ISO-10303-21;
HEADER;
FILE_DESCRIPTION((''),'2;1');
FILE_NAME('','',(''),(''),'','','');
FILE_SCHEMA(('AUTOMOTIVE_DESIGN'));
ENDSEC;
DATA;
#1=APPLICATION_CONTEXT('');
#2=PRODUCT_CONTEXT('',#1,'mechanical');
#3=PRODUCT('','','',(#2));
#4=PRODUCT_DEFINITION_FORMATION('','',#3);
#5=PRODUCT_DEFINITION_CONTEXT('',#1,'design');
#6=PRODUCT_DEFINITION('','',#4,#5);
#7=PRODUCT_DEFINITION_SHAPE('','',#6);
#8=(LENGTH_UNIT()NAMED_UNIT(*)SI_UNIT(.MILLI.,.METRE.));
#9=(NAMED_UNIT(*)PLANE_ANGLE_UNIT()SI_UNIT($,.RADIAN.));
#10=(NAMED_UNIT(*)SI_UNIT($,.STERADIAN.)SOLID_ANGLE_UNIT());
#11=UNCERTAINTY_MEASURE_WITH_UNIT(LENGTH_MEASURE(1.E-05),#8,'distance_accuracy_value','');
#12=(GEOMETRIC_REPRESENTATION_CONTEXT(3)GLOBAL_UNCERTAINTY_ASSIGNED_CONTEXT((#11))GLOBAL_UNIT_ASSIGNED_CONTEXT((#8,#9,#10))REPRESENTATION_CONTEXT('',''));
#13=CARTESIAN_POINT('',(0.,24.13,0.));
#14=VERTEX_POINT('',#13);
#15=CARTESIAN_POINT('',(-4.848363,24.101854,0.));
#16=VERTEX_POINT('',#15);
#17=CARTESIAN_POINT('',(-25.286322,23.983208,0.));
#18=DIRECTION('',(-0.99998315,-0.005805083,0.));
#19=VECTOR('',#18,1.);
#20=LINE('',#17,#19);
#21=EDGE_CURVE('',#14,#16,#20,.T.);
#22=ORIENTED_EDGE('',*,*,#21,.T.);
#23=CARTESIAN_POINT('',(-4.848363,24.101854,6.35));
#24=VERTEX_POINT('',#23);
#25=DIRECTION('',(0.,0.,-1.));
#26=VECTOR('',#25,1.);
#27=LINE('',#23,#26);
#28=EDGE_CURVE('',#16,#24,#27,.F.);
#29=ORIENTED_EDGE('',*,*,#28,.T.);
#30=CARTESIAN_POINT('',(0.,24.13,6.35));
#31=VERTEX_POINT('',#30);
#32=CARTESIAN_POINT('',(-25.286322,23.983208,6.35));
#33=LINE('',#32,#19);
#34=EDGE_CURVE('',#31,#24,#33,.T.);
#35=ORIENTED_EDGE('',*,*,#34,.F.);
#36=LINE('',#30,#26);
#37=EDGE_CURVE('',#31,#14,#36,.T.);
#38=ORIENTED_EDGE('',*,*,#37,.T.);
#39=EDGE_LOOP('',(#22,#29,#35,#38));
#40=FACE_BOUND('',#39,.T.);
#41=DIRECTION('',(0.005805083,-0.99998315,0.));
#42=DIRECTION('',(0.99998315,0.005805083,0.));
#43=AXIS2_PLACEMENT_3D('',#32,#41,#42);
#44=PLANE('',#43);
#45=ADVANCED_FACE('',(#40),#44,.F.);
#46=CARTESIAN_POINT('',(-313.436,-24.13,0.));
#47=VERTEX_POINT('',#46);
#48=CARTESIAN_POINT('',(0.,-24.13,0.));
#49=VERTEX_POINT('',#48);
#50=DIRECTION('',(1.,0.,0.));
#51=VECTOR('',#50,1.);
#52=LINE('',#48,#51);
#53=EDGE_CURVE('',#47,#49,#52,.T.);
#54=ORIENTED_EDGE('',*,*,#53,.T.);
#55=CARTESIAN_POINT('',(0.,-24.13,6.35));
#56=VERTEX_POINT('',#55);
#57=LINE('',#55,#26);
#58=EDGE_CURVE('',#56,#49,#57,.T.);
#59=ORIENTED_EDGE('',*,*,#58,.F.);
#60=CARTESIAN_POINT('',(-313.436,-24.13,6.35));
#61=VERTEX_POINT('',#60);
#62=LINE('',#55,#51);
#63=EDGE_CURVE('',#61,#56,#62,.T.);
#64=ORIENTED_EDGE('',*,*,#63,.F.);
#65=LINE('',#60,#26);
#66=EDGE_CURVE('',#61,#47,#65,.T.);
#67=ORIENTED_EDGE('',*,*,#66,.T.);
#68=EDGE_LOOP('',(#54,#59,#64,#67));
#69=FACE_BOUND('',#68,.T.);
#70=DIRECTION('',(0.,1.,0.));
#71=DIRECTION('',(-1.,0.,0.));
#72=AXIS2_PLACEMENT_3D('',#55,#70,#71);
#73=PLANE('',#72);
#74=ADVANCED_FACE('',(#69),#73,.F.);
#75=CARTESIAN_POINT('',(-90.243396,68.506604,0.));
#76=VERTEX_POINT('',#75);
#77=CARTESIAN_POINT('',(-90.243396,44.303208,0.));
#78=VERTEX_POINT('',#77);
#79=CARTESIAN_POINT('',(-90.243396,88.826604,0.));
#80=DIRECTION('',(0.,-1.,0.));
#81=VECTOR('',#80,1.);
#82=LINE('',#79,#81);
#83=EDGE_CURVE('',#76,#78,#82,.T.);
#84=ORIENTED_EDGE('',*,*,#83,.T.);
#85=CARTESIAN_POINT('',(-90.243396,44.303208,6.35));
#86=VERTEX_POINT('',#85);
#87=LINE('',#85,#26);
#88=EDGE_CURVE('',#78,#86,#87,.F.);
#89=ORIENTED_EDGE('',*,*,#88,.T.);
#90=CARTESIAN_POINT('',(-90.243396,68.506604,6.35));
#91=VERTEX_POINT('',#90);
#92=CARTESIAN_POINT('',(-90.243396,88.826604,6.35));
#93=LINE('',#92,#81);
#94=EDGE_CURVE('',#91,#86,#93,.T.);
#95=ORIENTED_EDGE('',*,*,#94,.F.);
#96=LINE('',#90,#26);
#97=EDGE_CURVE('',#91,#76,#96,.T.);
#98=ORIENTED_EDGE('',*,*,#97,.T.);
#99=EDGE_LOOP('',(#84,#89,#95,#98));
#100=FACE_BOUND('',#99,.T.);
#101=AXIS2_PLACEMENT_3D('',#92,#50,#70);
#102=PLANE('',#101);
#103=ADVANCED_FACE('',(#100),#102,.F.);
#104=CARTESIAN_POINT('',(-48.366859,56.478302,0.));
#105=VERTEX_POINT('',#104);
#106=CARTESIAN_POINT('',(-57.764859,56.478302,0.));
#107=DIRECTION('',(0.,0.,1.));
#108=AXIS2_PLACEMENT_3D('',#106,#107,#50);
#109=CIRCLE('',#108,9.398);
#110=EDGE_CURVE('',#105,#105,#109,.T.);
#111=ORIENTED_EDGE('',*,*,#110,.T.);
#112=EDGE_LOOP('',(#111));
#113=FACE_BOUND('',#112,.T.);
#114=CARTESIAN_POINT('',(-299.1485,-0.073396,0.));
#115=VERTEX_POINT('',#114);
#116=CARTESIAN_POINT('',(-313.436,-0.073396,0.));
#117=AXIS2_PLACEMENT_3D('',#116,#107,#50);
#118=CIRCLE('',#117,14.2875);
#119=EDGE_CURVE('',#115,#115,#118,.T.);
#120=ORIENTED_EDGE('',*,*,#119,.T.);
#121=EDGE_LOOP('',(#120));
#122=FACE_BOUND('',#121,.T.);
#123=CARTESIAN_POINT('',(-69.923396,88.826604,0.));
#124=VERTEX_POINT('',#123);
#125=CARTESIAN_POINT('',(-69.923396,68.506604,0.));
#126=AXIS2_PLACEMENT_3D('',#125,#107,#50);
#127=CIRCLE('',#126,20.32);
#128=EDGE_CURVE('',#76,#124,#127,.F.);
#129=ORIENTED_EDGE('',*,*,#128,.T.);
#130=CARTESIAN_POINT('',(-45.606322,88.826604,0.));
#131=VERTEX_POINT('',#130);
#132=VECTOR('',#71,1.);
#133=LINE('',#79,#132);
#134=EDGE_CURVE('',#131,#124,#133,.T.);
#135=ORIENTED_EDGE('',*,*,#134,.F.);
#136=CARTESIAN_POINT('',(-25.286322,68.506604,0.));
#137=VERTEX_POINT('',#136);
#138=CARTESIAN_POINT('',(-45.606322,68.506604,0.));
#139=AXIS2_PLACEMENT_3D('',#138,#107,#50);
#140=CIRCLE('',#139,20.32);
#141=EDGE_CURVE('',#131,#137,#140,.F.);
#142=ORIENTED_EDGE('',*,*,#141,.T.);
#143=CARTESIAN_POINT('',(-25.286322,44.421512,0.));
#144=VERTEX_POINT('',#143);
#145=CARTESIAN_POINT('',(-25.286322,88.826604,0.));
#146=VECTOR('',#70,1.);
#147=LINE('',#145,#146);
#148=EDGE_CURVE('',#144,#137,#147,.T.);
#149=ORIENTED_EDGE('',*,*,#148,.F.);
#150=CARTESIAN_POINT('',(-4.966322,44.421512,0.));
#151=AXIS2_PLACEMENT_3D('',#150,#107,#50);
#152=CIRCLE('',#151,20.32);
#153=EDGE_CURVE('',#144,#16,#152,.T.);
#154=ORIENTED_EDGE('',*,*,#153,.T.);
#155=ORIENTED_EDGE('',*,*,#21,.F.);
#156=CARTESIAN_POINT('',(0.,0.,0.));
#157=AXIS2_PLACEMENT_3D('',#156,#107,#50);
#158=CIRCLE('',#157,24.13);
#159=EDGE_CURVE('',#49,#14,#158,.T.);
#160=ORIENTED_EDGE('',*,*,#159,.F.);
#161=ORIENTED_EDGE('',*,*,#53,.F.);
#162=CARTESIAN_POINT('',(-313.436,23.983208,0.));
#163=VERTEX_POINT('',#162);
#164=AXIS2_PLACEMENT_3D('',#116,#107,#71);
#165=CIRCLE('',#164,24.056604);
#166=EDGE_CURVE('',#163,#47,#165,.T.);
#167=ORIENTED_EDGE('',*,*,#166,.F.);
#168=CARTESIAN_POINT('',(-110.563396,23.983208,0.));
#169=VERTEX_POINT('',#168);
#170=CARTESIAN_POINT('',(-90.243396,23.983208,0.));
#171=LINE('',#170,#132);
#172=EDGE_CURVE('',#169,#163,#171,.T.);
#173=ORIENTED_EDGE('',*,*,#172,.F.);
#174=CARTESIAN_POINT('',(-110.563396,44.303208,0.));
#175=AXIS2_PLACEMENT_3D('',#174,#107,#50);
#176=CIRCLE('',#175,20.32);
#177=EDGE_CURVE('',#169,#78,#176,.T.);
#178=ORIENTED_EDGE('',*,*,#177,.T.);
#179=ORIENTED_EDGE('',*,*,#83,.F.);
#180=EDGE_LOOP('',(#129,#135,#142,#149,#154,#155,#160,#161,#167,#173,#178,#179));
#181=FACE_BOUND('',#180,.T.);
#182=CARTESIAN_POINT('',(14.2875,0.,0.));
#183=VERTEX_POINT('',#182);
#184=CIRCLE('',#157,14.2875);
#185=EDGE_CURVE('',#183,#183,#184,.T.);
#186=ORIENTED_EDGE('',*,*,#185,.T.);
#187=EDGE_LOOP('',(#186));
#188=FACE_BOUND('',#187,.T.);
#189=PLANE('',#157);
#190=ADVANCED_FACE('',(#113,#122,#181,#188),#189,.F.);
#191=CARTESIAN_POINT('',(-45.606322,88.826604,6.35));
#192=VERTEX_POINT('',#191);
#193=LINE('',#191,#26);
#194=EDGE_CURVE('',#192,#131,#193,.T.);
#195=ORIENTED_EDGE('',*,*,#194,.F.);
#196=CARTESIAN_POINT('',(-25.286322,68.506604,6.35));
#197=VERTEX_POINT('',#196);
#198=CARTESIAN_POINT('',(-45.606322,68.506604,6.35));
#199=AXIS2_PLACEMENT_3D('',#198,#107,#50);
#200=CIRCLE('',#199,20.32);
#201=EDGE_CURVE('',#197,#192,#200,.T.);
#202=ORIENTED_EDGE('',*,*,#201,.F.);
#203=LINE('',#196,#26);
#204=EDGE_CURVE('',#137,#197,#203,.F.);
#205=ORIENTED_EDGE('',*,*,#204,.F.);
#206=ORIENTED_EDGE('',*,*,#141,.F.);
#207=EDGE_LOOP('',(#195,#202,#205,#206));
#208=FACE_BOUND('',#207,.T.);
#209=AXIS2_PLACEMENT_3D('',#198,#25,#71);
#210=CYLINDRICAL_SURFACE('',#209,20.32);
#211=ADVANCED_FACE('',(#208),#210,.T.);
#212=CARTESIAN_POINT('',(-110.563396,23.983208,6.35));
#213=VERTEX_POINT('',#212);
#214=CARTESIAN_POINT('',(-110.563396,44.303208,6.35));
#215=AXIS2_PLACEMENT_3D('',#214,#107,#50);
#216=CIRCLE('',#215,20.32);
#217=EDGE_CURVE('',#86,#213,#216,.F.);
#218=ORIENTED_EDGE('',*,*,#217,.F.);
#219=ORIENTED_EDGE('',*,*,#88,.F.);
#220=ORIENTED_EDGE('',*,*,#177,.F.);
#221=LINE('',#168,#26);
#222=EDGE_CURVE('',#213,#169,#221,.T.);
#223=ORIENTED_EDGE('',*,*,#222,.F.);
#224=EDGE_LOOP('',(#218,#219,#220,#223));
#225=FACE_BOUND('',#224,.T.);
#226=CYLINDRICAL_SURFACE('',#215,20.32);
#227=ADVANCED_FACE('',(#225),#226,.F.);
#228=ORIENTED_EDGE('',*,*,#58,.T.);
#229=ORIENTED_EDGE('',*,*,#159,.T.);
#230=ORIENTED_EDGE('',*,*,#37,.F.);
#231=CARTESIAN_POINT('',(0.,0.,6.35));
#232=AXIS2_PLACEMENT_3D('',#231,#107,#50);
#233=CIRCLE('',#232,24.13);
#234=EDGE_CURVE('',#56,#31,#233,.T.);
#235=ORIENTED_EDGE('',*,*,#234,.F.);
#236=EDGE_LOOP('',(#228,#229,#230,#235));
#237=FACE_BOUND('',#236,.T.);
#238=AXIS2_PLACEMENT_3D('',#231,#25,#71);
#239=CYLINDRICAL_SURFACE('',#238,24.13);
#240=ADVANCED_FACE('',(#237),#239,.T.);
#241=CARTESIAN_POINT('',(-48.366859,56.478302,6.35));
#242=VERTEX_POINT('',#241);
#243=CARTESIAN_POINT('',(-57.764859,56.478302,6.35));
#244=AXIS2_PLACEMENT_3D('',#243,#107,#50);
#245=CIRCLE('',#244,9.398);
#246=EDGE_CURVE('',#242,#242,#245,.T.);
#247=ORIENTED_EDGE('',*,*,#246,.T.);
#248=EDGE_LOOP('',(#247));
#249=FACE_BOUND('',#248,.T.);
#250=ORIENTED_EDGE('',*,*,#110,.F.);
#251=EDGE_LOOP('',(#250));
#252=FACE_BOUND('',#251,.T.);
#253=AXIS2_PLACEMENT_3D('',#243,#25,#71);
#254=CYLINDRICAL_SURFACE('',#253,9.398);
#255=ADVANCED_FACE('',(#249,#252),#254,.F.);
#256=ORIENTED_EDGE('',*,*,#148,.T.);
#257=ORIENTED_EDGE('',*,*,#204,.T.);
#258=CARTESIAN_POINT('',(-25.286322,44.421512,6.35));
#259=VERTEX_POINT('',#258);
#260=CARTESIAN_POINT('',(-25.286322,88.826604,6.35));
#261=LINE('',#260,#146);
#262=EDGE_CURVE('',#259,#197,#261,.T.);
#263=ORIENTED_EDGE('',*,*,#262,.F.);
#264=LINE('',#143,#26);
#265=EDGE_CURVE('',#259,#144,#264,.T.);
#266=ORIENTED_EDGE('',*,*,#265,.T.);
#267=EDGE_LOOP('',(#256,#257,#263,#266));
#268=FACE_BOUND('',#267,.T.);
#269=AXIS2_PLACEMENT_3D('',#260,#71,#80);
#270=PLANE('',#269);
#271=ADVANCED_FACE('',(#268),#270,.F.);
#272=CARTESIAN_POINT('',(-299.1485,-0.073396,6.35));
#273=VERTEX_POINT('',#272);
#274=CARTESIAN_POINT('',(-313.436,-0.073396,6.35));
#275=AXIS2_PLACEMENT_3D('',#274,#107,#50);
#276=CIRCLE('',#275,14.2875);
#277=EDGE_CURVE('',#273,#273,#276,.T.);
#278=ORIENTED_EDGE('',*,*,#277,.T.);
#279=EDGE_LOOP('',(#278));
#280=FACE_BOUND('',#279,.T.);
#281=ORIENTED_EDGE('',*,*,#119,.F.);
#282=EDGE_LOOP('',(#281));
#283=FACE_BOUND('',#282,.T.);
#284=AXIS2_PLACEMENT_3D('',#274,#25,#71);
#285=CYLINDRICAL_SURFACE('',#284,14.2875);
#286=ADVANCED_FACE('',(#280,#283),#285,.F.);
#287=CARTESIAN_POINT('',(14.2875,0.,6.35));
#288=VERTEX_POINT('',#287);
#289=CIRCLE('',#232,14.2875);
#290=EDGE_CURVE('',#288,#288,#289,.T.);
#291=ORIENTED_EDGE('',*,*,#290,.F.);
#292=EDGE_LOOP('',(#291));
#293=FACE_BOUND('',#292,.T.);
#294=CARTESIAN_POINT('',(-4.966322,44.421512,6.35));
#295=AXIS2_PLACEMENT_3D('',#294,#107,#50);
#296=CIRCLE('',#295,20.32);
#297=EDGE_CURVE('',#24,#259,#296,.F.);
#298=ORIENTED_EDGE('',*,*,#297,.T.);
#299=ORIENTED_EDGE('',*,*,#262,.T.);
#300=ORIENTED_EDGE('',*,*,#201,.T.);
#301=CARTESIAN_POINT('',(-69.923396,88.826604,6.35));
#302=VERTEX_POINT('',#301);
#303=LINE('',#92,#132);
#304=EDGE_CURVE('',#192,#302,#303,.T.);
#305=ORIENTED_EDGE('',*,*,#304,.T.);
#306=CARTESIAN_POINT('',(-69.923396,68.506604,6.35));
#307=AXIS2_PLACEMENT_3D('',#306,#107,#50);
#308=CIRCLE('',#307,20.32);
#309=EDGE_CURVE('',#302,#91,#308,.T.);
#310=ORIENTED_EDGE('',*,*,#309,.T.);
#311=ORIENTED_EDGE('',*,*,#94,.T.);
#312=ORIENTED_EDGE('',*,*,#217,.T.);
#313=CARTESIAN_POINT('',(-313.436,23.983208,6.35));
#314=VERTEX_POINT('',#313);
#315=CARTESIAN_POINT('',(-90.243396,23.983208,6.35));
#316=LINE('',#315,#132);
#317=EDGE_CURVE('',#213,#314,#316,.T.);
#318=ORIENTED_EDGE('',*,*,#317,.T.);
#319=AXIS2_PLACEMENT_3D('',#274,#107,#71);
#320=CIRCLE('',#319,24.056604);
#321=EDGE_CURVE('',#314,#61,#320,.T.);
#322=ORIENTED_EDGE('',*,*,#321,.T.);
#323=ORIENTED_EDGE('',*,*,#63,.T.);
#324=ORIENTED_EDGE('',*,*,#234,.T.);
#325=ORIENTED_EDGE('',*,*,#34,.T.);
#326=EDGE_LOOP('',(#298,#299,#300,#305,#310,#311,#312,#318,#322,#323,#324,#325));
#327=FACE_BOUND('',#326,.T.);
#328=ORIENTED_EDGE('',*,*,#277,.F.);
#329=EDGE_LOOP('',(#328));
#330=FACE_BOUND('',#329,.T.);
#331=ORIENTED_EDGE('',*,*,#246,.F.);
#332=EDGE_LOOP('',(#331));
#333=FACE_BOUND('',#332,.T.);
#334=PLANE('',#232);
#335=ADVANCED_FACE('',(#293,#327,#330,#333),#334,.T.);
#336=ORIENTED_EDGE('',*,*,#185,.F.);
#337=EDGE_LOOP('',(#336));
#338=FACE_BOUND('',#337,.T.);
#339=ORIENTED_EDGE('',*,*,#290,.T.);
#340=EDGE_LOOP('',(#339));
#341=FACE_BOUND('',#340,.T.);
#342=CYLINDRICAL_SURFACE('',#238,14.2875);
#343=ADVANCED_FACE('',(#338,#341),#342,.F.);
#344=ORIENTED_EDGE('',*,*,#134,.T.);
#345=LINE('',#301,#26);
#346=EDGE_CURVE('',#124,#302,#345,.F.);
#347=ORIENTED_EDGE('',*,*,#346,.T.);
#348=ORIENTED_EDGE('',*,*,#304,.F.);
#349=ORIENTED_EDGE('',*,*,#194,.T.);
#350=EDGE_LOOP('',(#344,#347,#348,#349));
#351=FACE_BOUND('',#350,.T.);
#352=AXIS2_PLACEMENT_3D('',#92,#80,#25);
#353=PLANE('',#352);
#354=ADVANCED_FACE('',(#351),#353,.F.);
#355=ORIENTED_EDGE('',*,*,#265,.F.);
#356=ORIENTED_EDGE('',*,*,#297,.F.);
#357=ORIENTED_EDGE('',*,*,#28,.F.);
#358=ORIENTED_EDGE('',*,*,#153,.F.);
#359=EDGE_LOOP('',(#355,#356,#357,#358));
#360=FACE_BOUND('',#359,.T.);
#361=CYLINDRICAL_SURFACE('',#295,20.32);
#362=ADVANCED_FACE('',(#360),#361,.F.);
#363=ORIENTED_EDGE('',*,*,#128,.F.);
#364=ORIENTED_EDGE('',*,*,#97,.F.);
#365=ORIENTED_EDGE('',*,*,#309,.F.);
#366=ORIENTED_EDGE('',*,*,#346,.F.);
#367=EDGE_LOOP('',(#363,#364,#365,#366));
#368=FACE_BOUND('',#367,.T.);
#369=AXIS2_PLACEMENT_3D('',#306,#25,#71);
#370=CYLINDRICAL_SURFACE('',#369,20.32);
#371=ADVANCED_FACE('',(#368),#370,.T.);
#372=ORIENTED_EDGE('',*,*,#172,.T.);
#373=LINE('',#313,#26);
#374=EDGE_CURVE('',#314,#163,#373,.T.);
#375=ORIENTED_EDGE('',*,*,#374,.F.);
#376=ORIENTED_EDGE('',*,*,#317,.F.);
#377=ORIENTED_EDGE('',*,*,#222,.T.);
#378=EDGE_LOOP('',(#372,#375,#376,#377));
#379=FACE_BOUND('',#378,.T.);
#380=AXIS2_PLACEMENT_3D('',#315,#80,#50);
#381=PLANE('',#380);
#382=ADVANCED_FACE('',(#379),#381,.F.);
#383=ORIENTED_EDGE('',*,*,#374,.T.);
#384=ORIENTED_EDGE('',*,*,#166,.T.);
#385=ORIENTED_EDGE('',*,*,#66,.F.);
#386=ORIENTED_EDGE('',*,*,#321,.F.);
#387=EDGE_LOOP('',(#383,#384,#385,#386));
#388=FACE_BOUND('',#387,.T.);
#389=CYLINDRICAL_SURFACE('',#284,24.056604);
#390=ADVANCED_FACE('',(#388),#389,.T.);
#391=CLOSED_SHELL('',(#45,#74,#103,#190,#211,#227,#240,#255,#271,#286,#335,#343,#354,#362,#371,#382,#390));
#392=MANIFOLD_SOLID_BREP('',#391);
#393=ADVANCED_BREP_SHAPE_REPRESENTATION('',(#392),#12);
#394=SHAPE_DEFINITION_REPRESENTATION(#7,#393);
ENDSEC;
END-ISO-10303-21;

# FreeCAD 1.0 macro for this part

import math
import FreeCAD as App
import Part
import Sketcher
from FreeCAD import Vector
Q = App.Units.Quantity


def edges_at(feature, points):
    """Names of the edges that pass closest to the given points."""
    edges = feature.Shape.Edges
    near = lambda p: min(range(len(edges)), key=lambda i: edges[i].distToShape(Part.Vertex(*p))[0])
    return sorted({f"Edge{near(p) + 1}" for p in points})

doc = App.newDocument("Part")
body = doc.addObject("PartDesign::Body", "Body")

# Sketch on XY plane
sketch1 = body.newObject("Sketcher::SketchObject", "Sketch")
sketch1.AttachmentSupport = (doc.getObject("XY_Plane"), [""])
sketch1.MapMode = "FlatFace"
sketch1.addGeometry(Part.LineSegment(Vector(-313, -24, 0), Vector(0, -24, 0)), False)
sketch1.addGeometry(Part.ArcOfCircle(Part.Circle(Vector(0, 0, 0), Vector(0, 0, 1), 24), math.radians(-90), math.radians(90)), False)
sketch1.addGeometry(Part.LineSegment(Vector(0, 24, 0), Vector(-25, 24, 0)), False)
sketch1.addGeometry(Part.LineSegment(Vector(-25, 24, 0), Vector(-25, 89, 0)), False)
sketch1.addGeometry(Part.LineSegment(Vector(-25, 89, 0), Vector(-90, 89, 0)), False)
sketch1.addGeometry(Part.LineSegment(Vector(-90, 89, 0), Vector(-90, 24, 0)), False)
sketch1.addGeometry(Part.LineSegment(Vector(-90, 24, 0), Vector(-313, 24, 0)), False)
sketch1.addGeometry(Part.ArcOfCircle(Part.Circle(Vector(-313, 0, 0), Vector(0, 0, 1), 24), math.radians(90), math.radians(270)), False)
sketch1.addGeometry(Part.Circle(Vector(0, 0, 0), Vector(0, 0, 1), 14), False)
sketch1.addGeometry(Part.Circle(Vector(-313, 0, 0), Vector(0, 0, 1), 14), False)
sketch1.addGeometry(Part.Circle(Vector(-58, 56, 0), Vector(0, 0, 1), 9), False)
sketch1.addConstraint(Sketcher.Constraint("Tangent", 0, 2, 1, 1))
sketch1.addConstraint(Sketcher.Constraint("Coincident", 1, 2, 2, 1))
sketch1.addConstraint(Sketcher.Constraint("Coincident", 2, 2, 3, 1))
sketch1.addConstraint(Sketcher.Constraint("Coincident", 3, 2, 4, 1))
sketch1.addConstraint(Sketcher.Constraint("Coincident", 4, 2, 5, 1))
sketch1.addConstraint(Sketcher.Constraint("Coincident", 5, 2, 6, 1))
sketch1.addConstraint(Sketcher.Constraint("Tangent", 6, 2, 7, 1))
sketch1.addConstraint(Sketcher.Constraint("Tangent", 7, 2, 0, 1))
sketch1.addConstraint(Sketcher.Constraint("Horizontal", 0))
sketch1.addConstraint(Sketcher.Constraint("Vertical", 3))
sketch1.addConstraint(Sketcher.Constraint("Horizontal", 4))
sketch1.addConstraint(Sketcher.Constraint("Vertical", 5))
sketch1.addConstraint(Sketcher.Constraint("Horizontal", 6))
sketch1.addConstraint(Sketcher.Constraint("Coincident", 1, 3, -1, 1))
sketch1.addConstraint(Sketcher.Constraint("Coincident", 8, 3, -1, 1))
sketch1.addConstraint(Sketcher.Constraint("Coincident", 9, 3, 7, 3))
sketch1.addConstraint(Sketcher.Constraint("Equal", 8, 9))
sketch1.addConstraint(Sketcher.Constraint("PointOnObject", 1, 2, -2))
sketch1.addConstraint(Sketcher.Constraint("Horizontal", 2, 2, 5, 2))
sketch1.addConstraint(Sketcher.Constraint("Diameter", 10, Q("0.74 in")))
sketch1.addConstraint(Sketcher.Constraint("Radius", 1, Q("0.95 in")))
sketch1.addConstraint(Sketcher.Constraint("Diameter", 8, Q("1.125 in")))
sketch1.addConstraint(Sketcher.Constraint("DistanceX", 0, 1, 0, 2, Q("12.34 in")))
sketch1.addConstraint(Sketcher.Constraint("Radius", 7, 24.056604))
sketch1.addConstraint(Sketcher.Constraint("Distance", 2, 25.286748))
sketch1.addConstraint(Sketcher.Constraint("DistanceX", 4, 2, 4, 1, 64.957074))
sketch1.addConstraint(Sketcher.Constraint("DistanceY", 3, 1, 3, 2, 64.843396))
sketch1.addConstraint(Sketcher.Constraint("DistanceX", 10, 3, -1, 1, 57.764859))
sketch1.addConstraint(Sketcher.Constraint("DistanceY", -1, 1, 10, 3, 56.478302))
pad1 = body.newObject("PartDesign::Pad", "Pad")
pad1.Profile = sketch1
pad1.Length = Q("0.25 in")
doc.recompute()

fillet = body.newObject("PartDesign::Fillet", "Fillet")
fillet.Base = (pad1, edges_at(pad1, [(-90.243, 23.983, 3.175)]))
fillet.Radius = Q("0.8 in")
doc.recompute()

fillet2 = body.newObject("PartDesign::Fillet", "Fillet001")
fillet2.Base = (fillet, edges_at(fillet, [(-25.286, 23.983, 3.175)]))
fillet2.Radius = Q("0.8 in")
doc.recompute()

fillet3 = body.newObject("PartDesign::Fillet", "Fillet002")
fillet3.Base = (fillet2, edges_at(fillet2, [(-25.286, 88.827, 3.175)]))
fillet3.Radius = Q("0.8 in")
doc.recompute()

fillet4 = body.newObject("PartDesign::Fillet", "Fillet003")
fillet4.Base = (fillet3, edges_at(fillet3, [(-90.243, 88.827, 3.175)]))
fillet4.Radius = Q("0.8 in")

doc.recompute()
